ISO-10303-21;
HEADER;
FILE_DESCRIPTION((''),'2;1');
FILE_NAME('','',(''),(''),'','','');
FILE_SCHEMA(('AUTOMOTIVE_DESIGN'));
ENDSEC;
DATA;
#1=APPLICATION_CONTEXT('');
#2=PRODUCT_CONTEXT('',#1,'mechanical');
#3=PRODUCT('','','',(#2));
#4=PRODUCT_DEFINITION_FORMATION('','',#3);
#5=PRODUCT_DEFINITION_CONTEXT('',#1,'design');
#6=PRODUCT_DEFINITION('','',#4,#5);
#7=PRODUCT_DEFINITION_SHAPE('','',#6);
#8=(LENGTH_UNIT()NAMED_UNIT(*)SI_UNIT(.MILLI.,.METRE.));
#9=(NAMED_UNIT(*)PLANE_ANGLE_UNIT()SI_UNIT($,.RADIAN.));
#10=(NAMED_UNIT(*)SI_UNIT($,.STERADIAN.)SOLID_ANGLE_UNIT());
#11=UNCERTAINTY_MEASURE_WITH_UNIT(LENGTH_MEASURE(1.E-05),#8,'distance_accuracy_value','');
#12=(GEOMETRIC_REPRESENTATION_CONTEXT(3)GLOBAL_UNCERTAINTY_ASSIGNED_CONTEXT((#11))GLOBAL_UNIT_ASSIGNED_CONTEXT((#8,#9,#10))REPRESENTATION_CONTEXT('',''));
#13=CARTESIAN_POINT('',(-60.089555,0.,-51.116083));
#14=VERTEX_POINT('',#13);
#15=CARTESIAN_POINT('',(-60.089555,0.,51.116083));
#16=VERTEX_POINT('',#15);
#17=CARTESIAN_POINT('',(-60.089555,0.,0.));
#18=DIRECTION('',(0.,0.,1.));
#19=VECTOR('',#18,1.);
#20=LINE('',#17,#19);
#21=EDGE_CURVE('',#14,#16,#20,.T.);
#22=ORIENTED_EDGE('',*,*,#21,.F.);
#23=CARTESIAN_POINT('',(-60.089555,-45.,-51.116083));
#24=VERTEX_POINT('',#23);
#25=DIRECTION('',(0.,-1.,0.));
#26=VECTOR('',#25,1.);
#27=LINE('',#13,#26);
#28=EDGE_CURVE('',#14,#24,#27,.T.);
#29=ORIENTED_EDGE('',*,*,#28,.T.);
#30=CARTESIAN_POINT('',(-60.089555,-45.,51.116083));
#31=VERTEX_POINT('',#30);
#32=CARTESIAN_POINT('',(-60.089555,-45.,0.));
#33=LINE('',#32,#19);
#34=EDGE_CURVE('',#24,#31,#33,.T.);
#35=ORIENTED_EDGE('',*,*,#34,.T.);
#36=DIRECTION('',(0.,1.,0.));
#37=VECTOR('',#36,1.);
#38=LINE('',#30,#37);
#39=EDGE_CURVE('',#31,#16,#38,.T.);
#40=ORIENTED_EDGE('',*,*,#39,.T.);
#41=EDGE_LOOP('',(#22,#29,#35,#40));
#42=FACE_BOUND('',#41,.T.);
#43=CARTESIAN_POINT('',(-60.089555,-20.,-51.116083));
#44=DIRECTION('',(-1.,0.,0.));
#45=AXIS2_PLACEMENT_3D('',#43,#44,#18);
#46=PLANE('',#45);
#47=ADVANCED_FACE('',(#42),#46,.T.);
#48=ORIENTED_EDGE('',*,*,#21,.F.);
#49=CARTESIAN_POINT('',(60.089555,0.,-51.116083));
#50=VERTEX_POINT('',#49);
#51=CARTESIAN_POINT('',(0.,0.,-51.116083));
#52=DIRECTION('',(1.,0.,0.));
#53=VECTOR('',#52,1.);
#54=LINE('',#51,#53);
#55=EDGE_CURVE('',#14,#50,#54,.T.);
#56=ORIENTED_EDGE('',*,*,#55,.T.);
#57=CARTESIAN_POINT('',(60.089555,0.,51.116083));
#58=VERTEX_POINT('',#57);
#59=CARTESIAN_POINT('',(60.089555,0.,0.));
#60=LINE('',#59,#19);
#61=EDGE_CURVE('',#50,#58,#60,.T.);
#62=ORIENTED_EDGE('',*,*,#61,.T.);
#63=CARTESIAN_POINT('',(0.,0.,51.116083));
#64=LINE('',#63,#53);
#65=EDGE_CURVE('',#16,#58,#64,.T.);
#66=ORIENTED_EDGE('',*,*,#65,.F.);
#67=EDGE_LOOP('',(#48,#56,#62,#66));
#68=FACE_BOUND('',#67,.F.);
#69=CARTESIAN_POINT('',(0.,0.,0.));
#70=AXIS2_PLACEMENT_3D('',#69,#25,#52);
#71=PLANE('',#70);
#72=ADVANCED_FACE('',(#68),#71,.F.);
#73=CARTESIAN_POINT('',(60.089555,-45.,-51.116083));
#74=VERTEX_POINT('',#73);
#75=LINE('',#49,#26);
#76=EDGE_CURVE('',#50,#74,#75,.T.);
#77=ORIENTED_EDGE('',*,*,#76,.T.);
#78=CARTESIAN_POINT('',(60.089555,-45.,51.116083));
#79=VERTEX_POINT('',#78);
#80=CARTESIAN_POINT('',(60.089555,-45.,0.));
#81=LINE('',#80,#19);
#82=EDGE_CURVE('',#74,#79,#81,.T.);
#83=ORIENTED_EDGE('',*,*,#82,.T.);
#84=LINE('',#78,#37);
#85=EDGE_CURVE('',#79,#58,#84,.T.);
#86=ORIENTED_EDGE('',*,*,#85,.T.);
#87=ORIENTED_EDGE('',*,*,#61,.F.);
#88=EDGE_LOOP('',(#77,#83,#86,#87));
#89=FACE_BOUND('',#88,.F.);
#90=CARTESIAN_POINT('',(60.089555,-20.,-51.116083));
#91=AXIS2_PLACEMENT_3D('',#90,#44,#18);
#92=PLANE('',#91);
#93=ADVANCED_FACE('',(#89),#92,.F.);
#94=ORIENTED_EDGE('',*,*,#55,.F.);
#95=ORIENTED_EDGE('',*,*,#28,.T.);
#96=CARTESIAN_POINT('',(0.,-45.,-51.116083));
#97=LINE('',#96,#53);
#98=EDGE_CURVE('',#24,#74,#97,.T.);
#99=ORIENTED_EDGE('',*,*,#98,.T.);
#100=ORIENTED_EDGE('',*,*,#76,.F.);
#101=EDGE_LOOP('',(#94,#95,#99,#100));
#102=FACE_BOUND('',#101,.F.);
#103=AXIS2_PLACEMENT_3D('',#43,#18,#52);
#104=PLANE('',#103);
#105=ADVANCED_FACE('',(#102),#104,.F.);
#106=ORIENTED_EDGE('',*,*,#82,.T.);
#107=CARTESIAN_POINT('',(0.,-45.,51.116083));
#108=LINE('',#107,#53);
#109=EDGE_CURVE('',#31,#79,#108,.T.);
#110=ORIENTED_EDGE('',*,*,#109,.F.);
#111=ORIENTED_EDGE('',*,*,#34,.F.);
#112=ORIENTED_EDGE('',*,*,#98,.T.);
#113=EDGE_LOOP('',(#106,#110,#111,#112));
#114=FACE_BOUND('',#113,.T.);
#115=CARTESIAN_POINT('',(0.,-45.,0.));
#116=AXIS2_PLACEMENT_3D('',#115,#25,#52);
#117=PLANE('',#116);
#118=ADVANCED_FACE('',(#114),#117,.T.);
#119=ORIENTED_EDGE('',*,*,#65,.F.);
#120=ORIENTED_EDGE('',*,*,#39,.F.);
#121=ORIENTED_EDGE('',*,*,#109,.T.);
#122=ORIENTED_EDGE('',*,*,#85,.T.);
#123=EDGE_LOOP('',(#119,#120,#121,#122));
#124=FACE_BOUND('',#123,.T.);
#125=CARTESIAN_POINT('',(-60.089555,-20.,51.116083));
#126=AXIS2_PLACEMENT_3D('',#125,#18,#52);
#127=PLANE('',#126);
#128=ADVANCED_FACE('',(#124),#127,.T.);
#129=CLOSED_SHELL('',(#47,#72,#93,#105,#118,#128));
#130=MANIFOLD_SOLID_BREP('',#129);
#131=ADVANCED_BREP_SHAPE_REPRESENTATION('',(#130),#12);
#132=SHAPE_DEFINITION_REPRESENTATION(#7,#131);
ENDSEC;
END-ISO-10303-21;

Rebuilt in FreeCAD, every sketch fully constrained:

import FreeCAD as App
import Part
import Sketcher
from FreeCAD import Vector
Q = App.Units.Quantity


def add_polygon(sketch, points):
    """Adds a closed chain of lines whose ends are joined by coincident constraints."""
    first, n = sketch.GeometryCount, len(points)
    for a, b in zip(points, points[1:] + points[:1]):
        sketch.addGeometry(Part.LineSegment(App.Vector(*a, 0), App.Vector(*b, 0)), False)
    for i in range(n):
        sketch.addConstraint(Sketcher.Constraint("Coincident", first + i, 2, first + (i + 1) % n, 1))

doc = App.newDocument("Part")
body = doc.addObject("PartDesign::Body", "Body")

sketch1 = body.newObject("Sketcher::SketchObject", "Sketch")
sketch1.AttachmentSupport = (doc.getObject("XZ_Plane"), [""])
sketch1.MapMode = "FlatFace"
add_polygon(sketch1, [(-60.089555, 51.116083), (-60.089555, -51.116083), (60.089555, -51.116083), (60.089555, 51.116083)])
sketch1.addConstraint([
    Sketcher.Constraint("Vertical", 0),
    Sketcher.Constraint("Horizontal", 1),
    Sketcher.Constraint("Vertical", 2),
    Sketcher.Constraint("Horizontal", 3),
    Sketcher.Constraint("Symmetric", 0, 2, 2, 2, -1, 1),
    Sketcher.Constraint("DistanceX", 1, 1, 1, 2, Q("120.179109 mm")),
    Sketcher.Constraint("DistanceY", 0, 2, 0, 1, Q("102.232166 mm")),
])
pad1 = body.newObject("PartDesign::Pad", "Pad")
pad1.Profile = sketch1
pad1.Length = 20

sketch2 = body.newObject("Sketcher::SketchObject", "Sketch001")
sketch2.AttachmentSupport = (doc.getObject("XZ_Plane"), [""])
sketch2.MapMode = "FlatFace"
sketch2.AttachmentOffset = App.Placement(Vector(0, 0, 20), App.Rotation())
add_polygon(sketch2, [(-60.089555, 51.116083), (-60.089555, -51.116083), (60.089555, -51.116083), (60.089555, 51.116083)])
sketch2.addConstraint([
    Sketcher.Constraint("Vertical", 0),
    Sketcher.Constraint("Horizontal", 1),
    Sketcher.Constraint("Vertical", 2),
    Sketcher.Constraint("Horizontal", 3),
    Sketcher.Constraint("Symmetric", 0, 2, 2, 2, -1, 1),
    Sketcher.Constraint("DistanceX", 1, 1, 1, 2, Q("120.179109 mm")),
    Sketcher.Constraint("DistanceY", 0, 2, 0, 1, Q("102.232166 mm")),
])
pad2 = body.newObject("PartDesign::Pad", "Pad001")
pad2.Profile = sketch2
pad2.Length = 25

doc.recompute()
